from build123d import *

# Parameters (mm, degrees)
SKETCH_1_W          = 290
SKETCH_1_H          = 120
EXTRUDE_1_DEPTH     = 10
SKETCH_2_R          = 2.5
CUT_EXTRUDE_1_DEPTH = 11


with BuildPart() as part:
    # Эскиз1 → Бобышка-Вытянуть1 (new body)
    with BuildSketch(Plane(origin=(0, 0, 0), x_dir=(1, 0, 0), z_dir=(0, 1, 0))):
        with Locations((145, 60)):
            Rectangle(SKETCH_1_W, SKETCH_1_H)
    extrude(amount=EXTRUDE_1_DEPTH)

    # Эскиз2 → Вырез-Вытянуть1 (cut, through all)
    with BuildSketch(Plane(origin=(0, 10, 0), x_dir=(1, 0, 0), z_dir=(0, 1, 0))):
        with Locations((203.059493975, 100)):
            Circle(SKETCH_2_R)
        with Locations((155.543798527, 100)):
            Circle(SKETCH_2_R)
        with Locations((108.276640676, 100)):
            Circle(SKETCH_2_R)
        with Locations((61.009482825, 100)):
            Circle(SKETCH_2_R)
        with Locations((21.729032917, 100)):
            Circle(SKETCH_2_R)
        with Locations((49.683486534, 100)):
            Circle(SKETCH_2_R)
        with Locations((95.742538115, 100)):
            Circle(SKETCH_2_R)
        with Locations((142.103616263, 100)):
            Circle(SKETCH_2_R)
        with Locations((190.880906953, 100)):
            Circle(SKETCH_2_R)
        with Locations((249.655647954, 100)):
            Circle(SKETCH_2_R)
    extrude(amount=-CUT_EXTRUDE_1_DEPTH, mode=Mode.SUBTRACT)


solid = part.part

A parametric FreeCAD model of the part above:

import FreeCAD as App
import Part
import Sketcher

V = App.Vector

doc = App.newDocument("Part")
body = doc.addObject("PartDesign::Body", "Body")

# Sketch on XZ plane
sketch1 = body.newObject("Sketcher::SketchObject", "Sketch")
sketch1.AttachmentSupport = (doc.getObject("XZ_Plane"), [""])
sketch1.MapMode = "FlatFace"
sketch1.addGeometry([
    Part.LineSegment(V(0, -120, 0), V(0, 0, 0)),
    Part.LineSegment(V(0, 0, 0), V(290, 0, 0)),
    Part.LineSegment(V(290, 0, 0), V(290, -120, 0)),
    Part.LineSegment(V(290, -120, 0), V(0, -120, 0)),
], False)
sketch1.addConstraint([
    Sketcher.Constraint("Coincident", 0, 2, 1, 1),
    Sketcher.Constraint("Coincident", 1, 2, 2, 1),
    Sketcher.Constraint("Coincident", 2, 2, 3, 1),
    Sketcher.Constraint("Coincident", 3, 2, 0, 1),
    Sketcher.Constraint("Vertical", 0),
    Sketcher.Constraint("Horizontal", 1),
    Sketcher.Constraint("Vertical", 2),
    Sketcher.Constraint("Horizontal", 3),
    Sketcher.Constraint("Coincident", 0, 2, -1, 1),
    Sketcher.Constraint("DistanceX", 1, 1, 1, 2, 290.0),
    Sketcher.Constraint("DistanceY", 0, 1, 0, 2, 120.0),
])
pad1 = body.newObject("PartDesign::Pad", "Pad")
pad1.Profile = sketch1
pad1.Length = 10
pad1.Reversed = True

# Sketch on XZ plane
sketch2 = body.newObject("Sketcher::SketchObject", "Sketch001")
sketch2.AttachmentSupport = (doc.getObject("XZ_Plane"), [""])
sketch2.MapMode = "FlatFace"
sketch2.AttachmentOffset = App.Placement(V(0, 0, -10), App.Rotation())
sketch2.addGeometry([
    Part.Circle(V(203.1, -100, 0), V(0, 0, 1), 2.5),  # 0
    Part.Circle(V(155.5, -100, 0), V(0, 0, 1), 2.5),  # 1
    Part.Circle(V(108.3, -100, 0), V(0, 0, 1), 2.5),  # 2
    Part.Circle(V(61, -100, 0), V(0, 0, 1), 2.5),  # 3
    Part.Circle(V(21.7, -100, 0), V(0, 0, 1), 2.5),  # 4
    Part.Circle(V(49.7, -100, 0), V(0, 0, 1), 2.5),  # 5
    Part.Circle(V(95.7, -100, 0), V(0, 0, 1), 2.5),  # 6
    Part.Circle(V(142.1, -100, 0), V(0, 0, 1), 2.5),  # 7
    Part.Circle(V(190.9, -100, 0), V(0, 0, 1), 2.5),  # 8
    Part.Circle(V(249.7, -100, 0), V(0, 0, 1), 2.5),  # 9
], False)
sketch2.addConstraint([
    Sketcher.Constraint("Equal", 0, 1),
    Sketcher.Constraint("Equal", 1, 2),
    Sketcher.Constraint("Equal", 2, 3),
    Sketcher.Constraint("Equal", 3, 4),
    Sketcher.Constraint("Equal", 4, 5),
    Sketcher.Constraint("Equal", 5, 6),
    Sketcher.Constraint("Equal", 6, 7),
    Sketcher.Constraint("Equal", 7, 8),
    Sketcher.Constraint("Equal", 8, 9),
    Sketcher.Constraint("Horizontal", 0, 3, 1, 3),
    Sketcher.Constraint("Horizontal", 1, 3, 2, 3),
    Sketcher.Constraint("Horizontal", 2, 3, 3, 3),
    Sketcher.Constraint("Horizontal", 3, 3, 4, 3),
    Sketcher.Constraint("Horizontal", 4, 3, 5, 3),
    Sketcher.Constraint("Horizontal", 5, 3, 6, 3),
    Sketcher.Constraint("Horizontal", 6, 3, 7, 3),
    Sketcher.Constraint("Horizontal", 7, 3, 8, 3),
    Sketcher.Constraint("Horizontal", 8, 3, 9, 3),
    Sketcher.Constraint("Diameter", 0, 5.0),
    Sketcher.Constraint("DistanceY", 0, 3, -1, 1, 100.0),
    Sketcher.Constraint("DistanceX", -1, 1, 1, 3, 155.543799),
    Sketcher.Constraint("DistanceX", -1, 1, 2, 3, 108.276641),
    Sketcher.Constraint("DistanceX", -1, 1, 6, 3, 95.742538),
    Sketcher.Constraint("DistanceX", 3, 3, 0, 3, 142.050011),
    Sketcher.Constraint("DistanceX", 4, 3, 3, 3, 39.28045),
    Sketcher.Constraint("DistanceX", 5, 3, 1, 3, 105.860312),
    Sketcher.Constraint("DistanceX", 6, 3, 7, 3, 46.361078),
    Sketcher.Constraint("DistanceX", 1, 3, 8, 3, 35.337108),
    Sketcher.Constraint("DistanceX", 8, 3, 9, 3, 58.774741),
    Sketcher.Constraint("DistanceX", -1, 1, 0, 3, 203.059494),
])
pocket1 = body.newObject("PartDesign::Pocket", "Pocket")
pocket1.Profile = sketch2
pocket1.Type = "ThroughAll"
pocket1.Reversed = True

doc.recompute()
